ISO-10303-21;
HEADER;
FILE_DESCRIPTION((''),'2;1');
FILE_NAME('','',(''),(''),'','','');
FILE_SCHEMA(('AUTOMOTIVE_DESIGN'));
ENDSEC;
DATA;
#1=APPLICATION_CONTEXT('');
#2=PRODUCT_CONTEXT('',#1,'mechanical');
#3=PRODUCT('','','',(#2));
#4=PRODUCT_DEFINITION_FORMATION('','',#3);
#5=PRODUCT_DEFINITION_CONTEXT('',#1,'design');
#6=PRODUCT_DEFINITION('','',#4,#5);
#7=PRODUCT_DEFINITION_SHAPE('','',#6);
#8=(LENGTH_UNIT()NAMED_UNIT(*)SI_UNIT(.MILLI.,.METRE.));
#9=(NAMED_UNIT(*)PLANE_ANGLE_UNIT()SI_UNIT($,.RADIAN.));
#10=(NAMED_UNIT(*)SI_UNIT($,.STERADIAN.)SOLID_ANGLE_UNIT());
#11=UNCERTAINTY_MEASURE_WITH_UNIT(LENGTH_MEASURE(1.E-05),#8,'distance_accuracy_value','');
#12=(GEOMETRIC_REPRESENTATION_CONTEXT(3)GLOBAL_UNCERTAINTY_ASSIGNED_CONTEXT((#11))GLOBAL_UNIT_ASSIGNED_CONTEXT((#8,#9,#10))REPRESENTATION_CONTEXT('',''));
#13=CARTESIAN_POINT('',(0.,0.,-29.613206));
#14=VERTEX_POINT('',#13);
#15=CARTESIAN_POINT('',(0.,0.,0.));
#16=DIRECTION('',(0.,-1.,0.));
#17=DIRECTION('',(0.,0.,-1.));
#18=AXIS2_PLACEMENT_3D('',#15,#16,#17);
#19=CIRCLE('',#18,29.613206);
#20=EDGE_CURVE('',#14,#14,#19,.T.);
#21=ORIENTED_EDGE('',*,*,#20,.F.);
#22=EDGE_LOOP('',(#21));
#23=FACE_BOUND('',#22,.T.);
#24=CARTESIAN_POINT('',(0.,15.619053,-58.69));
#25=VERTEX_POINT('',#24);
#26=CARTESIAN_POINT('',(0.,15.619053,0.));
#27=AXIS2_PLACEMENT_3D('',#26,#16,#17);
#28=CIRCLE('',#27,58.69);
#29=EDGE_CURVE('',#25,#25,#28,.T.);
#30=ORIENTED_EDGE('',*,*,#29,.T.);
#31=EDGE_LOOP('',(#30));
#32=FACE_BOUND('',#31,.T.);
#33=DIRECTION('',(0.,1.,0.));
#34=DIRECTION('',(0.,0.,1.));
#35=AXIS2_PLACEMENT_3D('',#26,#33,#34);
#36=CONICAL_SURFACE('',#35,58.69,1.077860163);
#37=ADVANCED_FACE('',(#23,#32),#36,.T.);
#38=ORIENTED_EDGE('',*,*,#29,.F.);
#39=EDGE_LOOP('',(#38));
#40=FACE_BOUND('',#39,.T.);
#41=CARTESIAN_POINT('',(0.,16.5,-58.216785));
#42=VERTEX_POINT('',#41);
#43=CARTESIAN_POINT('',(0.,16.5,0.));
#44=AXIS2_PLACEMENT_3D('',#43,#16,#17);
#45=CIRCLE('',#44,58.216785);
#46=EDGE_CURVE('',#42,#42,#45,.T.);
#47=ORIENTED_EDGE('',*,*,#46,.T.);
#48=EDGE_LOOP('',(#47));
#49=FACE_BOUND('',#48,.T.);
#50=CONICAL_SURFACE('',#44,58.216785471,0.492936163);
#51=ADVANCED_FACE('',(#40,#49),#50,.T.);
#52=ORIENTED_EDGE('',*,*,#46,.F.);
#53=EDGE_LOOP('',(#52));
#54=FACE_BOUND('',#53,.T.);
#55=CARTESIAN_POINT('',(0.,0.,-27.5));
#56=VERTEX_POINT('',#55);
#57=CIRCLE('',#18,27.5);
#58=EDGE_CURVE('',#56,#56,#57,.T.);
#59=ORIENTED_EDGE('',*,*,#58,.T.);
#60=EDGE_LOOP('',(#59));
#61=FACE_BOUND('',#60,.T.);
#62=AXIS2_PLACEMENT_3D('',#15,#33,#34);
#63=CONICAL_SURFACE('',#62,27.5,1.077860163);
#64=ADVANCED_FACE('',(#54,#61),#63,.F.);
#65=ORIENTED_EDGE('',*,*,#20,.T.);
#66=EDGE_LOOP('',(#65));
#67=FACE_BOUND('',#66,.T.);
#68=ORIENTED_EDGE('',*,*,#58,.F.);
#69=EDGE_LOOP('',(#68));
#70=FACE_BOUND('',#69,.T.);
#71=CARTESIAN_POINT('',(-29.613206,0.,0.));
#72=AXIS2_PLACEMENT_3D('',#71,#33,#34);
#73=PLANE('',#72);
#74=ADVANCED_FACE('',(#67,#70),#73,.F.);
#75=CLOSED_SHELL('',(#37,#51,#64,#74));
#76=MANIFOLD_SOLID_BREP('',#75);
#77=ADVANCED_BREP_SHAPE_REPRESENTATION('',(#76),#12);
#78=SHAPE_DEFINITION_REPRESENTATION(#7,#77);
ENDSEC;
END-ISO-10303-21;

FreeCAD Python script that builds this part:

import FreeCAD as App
import Part
import Sketcher
Q = App.Units.Quantity


def add_polygon(sketch, points):
    """Adds a closed chain of lines whose ends are joined by coincident constraints."""
    first, n = sketch.GeometryCount, len(points)
    for a, b in zip(points, points[1:] + points[:1]):
        sketch.addGeometry(Part.LineSegment(App.Vector(*a, 0), App.Vector(*b, 0)), False)
    for i in range(n):
        sketch.addConstraint(Sketcher.Constraint("Coincident", first + i, 2, first + (i + 1) % n, 1))

doc = App.newDocument("Part")
body = doc.addObject("PartDesign::Body", "Body")

# Sketch on XY plane
sketch1 = body.newObject("Sketcher::SketchObject", "Sketch")
sketch1.AttachmentSupport = (doc.getObject("XY_Plane"), [""])
sketch1.MapMode = "FlatFace"
add_polygon(sketch1, [(-58.69, 15.619053), (-29.613206, 0), (-27.5, 0), (-58.216785, 16.5)])  # lines 0-3
sketch1.addConstraint([
    Sketcher.Constraint("Horizontal", 1),
    Sketcher.Constraint("PointOnObject", 0, 2, -1),
    Sketcher.Constraint("Parallel", 0, 2),
    Sketcher.Constraint("Perpendicular", 2, 3),
    Sketcher.Constraint("Distance", 3, Q("1 mm")),
    Sketcher.Constraint("DistanceX", 1, 2, -1, 1, Q("27.5 mm")),
    Sketcher.Constraint("DistanceY", -1, 1, 2, 2, Q("16.5 mm")),
    Sketcher.Constraint("DistanceX", 3, 2, -1, 1, Q("58.69 mm")),
])
revolution = body.newObject("PartDesign::Revolution", "Revolution")
revolution.Profile = sketch1
revolution.ReferenceAxis = (sketch1, ["V_Axis"])
revolution.Angle = 360

doc.recompute()
